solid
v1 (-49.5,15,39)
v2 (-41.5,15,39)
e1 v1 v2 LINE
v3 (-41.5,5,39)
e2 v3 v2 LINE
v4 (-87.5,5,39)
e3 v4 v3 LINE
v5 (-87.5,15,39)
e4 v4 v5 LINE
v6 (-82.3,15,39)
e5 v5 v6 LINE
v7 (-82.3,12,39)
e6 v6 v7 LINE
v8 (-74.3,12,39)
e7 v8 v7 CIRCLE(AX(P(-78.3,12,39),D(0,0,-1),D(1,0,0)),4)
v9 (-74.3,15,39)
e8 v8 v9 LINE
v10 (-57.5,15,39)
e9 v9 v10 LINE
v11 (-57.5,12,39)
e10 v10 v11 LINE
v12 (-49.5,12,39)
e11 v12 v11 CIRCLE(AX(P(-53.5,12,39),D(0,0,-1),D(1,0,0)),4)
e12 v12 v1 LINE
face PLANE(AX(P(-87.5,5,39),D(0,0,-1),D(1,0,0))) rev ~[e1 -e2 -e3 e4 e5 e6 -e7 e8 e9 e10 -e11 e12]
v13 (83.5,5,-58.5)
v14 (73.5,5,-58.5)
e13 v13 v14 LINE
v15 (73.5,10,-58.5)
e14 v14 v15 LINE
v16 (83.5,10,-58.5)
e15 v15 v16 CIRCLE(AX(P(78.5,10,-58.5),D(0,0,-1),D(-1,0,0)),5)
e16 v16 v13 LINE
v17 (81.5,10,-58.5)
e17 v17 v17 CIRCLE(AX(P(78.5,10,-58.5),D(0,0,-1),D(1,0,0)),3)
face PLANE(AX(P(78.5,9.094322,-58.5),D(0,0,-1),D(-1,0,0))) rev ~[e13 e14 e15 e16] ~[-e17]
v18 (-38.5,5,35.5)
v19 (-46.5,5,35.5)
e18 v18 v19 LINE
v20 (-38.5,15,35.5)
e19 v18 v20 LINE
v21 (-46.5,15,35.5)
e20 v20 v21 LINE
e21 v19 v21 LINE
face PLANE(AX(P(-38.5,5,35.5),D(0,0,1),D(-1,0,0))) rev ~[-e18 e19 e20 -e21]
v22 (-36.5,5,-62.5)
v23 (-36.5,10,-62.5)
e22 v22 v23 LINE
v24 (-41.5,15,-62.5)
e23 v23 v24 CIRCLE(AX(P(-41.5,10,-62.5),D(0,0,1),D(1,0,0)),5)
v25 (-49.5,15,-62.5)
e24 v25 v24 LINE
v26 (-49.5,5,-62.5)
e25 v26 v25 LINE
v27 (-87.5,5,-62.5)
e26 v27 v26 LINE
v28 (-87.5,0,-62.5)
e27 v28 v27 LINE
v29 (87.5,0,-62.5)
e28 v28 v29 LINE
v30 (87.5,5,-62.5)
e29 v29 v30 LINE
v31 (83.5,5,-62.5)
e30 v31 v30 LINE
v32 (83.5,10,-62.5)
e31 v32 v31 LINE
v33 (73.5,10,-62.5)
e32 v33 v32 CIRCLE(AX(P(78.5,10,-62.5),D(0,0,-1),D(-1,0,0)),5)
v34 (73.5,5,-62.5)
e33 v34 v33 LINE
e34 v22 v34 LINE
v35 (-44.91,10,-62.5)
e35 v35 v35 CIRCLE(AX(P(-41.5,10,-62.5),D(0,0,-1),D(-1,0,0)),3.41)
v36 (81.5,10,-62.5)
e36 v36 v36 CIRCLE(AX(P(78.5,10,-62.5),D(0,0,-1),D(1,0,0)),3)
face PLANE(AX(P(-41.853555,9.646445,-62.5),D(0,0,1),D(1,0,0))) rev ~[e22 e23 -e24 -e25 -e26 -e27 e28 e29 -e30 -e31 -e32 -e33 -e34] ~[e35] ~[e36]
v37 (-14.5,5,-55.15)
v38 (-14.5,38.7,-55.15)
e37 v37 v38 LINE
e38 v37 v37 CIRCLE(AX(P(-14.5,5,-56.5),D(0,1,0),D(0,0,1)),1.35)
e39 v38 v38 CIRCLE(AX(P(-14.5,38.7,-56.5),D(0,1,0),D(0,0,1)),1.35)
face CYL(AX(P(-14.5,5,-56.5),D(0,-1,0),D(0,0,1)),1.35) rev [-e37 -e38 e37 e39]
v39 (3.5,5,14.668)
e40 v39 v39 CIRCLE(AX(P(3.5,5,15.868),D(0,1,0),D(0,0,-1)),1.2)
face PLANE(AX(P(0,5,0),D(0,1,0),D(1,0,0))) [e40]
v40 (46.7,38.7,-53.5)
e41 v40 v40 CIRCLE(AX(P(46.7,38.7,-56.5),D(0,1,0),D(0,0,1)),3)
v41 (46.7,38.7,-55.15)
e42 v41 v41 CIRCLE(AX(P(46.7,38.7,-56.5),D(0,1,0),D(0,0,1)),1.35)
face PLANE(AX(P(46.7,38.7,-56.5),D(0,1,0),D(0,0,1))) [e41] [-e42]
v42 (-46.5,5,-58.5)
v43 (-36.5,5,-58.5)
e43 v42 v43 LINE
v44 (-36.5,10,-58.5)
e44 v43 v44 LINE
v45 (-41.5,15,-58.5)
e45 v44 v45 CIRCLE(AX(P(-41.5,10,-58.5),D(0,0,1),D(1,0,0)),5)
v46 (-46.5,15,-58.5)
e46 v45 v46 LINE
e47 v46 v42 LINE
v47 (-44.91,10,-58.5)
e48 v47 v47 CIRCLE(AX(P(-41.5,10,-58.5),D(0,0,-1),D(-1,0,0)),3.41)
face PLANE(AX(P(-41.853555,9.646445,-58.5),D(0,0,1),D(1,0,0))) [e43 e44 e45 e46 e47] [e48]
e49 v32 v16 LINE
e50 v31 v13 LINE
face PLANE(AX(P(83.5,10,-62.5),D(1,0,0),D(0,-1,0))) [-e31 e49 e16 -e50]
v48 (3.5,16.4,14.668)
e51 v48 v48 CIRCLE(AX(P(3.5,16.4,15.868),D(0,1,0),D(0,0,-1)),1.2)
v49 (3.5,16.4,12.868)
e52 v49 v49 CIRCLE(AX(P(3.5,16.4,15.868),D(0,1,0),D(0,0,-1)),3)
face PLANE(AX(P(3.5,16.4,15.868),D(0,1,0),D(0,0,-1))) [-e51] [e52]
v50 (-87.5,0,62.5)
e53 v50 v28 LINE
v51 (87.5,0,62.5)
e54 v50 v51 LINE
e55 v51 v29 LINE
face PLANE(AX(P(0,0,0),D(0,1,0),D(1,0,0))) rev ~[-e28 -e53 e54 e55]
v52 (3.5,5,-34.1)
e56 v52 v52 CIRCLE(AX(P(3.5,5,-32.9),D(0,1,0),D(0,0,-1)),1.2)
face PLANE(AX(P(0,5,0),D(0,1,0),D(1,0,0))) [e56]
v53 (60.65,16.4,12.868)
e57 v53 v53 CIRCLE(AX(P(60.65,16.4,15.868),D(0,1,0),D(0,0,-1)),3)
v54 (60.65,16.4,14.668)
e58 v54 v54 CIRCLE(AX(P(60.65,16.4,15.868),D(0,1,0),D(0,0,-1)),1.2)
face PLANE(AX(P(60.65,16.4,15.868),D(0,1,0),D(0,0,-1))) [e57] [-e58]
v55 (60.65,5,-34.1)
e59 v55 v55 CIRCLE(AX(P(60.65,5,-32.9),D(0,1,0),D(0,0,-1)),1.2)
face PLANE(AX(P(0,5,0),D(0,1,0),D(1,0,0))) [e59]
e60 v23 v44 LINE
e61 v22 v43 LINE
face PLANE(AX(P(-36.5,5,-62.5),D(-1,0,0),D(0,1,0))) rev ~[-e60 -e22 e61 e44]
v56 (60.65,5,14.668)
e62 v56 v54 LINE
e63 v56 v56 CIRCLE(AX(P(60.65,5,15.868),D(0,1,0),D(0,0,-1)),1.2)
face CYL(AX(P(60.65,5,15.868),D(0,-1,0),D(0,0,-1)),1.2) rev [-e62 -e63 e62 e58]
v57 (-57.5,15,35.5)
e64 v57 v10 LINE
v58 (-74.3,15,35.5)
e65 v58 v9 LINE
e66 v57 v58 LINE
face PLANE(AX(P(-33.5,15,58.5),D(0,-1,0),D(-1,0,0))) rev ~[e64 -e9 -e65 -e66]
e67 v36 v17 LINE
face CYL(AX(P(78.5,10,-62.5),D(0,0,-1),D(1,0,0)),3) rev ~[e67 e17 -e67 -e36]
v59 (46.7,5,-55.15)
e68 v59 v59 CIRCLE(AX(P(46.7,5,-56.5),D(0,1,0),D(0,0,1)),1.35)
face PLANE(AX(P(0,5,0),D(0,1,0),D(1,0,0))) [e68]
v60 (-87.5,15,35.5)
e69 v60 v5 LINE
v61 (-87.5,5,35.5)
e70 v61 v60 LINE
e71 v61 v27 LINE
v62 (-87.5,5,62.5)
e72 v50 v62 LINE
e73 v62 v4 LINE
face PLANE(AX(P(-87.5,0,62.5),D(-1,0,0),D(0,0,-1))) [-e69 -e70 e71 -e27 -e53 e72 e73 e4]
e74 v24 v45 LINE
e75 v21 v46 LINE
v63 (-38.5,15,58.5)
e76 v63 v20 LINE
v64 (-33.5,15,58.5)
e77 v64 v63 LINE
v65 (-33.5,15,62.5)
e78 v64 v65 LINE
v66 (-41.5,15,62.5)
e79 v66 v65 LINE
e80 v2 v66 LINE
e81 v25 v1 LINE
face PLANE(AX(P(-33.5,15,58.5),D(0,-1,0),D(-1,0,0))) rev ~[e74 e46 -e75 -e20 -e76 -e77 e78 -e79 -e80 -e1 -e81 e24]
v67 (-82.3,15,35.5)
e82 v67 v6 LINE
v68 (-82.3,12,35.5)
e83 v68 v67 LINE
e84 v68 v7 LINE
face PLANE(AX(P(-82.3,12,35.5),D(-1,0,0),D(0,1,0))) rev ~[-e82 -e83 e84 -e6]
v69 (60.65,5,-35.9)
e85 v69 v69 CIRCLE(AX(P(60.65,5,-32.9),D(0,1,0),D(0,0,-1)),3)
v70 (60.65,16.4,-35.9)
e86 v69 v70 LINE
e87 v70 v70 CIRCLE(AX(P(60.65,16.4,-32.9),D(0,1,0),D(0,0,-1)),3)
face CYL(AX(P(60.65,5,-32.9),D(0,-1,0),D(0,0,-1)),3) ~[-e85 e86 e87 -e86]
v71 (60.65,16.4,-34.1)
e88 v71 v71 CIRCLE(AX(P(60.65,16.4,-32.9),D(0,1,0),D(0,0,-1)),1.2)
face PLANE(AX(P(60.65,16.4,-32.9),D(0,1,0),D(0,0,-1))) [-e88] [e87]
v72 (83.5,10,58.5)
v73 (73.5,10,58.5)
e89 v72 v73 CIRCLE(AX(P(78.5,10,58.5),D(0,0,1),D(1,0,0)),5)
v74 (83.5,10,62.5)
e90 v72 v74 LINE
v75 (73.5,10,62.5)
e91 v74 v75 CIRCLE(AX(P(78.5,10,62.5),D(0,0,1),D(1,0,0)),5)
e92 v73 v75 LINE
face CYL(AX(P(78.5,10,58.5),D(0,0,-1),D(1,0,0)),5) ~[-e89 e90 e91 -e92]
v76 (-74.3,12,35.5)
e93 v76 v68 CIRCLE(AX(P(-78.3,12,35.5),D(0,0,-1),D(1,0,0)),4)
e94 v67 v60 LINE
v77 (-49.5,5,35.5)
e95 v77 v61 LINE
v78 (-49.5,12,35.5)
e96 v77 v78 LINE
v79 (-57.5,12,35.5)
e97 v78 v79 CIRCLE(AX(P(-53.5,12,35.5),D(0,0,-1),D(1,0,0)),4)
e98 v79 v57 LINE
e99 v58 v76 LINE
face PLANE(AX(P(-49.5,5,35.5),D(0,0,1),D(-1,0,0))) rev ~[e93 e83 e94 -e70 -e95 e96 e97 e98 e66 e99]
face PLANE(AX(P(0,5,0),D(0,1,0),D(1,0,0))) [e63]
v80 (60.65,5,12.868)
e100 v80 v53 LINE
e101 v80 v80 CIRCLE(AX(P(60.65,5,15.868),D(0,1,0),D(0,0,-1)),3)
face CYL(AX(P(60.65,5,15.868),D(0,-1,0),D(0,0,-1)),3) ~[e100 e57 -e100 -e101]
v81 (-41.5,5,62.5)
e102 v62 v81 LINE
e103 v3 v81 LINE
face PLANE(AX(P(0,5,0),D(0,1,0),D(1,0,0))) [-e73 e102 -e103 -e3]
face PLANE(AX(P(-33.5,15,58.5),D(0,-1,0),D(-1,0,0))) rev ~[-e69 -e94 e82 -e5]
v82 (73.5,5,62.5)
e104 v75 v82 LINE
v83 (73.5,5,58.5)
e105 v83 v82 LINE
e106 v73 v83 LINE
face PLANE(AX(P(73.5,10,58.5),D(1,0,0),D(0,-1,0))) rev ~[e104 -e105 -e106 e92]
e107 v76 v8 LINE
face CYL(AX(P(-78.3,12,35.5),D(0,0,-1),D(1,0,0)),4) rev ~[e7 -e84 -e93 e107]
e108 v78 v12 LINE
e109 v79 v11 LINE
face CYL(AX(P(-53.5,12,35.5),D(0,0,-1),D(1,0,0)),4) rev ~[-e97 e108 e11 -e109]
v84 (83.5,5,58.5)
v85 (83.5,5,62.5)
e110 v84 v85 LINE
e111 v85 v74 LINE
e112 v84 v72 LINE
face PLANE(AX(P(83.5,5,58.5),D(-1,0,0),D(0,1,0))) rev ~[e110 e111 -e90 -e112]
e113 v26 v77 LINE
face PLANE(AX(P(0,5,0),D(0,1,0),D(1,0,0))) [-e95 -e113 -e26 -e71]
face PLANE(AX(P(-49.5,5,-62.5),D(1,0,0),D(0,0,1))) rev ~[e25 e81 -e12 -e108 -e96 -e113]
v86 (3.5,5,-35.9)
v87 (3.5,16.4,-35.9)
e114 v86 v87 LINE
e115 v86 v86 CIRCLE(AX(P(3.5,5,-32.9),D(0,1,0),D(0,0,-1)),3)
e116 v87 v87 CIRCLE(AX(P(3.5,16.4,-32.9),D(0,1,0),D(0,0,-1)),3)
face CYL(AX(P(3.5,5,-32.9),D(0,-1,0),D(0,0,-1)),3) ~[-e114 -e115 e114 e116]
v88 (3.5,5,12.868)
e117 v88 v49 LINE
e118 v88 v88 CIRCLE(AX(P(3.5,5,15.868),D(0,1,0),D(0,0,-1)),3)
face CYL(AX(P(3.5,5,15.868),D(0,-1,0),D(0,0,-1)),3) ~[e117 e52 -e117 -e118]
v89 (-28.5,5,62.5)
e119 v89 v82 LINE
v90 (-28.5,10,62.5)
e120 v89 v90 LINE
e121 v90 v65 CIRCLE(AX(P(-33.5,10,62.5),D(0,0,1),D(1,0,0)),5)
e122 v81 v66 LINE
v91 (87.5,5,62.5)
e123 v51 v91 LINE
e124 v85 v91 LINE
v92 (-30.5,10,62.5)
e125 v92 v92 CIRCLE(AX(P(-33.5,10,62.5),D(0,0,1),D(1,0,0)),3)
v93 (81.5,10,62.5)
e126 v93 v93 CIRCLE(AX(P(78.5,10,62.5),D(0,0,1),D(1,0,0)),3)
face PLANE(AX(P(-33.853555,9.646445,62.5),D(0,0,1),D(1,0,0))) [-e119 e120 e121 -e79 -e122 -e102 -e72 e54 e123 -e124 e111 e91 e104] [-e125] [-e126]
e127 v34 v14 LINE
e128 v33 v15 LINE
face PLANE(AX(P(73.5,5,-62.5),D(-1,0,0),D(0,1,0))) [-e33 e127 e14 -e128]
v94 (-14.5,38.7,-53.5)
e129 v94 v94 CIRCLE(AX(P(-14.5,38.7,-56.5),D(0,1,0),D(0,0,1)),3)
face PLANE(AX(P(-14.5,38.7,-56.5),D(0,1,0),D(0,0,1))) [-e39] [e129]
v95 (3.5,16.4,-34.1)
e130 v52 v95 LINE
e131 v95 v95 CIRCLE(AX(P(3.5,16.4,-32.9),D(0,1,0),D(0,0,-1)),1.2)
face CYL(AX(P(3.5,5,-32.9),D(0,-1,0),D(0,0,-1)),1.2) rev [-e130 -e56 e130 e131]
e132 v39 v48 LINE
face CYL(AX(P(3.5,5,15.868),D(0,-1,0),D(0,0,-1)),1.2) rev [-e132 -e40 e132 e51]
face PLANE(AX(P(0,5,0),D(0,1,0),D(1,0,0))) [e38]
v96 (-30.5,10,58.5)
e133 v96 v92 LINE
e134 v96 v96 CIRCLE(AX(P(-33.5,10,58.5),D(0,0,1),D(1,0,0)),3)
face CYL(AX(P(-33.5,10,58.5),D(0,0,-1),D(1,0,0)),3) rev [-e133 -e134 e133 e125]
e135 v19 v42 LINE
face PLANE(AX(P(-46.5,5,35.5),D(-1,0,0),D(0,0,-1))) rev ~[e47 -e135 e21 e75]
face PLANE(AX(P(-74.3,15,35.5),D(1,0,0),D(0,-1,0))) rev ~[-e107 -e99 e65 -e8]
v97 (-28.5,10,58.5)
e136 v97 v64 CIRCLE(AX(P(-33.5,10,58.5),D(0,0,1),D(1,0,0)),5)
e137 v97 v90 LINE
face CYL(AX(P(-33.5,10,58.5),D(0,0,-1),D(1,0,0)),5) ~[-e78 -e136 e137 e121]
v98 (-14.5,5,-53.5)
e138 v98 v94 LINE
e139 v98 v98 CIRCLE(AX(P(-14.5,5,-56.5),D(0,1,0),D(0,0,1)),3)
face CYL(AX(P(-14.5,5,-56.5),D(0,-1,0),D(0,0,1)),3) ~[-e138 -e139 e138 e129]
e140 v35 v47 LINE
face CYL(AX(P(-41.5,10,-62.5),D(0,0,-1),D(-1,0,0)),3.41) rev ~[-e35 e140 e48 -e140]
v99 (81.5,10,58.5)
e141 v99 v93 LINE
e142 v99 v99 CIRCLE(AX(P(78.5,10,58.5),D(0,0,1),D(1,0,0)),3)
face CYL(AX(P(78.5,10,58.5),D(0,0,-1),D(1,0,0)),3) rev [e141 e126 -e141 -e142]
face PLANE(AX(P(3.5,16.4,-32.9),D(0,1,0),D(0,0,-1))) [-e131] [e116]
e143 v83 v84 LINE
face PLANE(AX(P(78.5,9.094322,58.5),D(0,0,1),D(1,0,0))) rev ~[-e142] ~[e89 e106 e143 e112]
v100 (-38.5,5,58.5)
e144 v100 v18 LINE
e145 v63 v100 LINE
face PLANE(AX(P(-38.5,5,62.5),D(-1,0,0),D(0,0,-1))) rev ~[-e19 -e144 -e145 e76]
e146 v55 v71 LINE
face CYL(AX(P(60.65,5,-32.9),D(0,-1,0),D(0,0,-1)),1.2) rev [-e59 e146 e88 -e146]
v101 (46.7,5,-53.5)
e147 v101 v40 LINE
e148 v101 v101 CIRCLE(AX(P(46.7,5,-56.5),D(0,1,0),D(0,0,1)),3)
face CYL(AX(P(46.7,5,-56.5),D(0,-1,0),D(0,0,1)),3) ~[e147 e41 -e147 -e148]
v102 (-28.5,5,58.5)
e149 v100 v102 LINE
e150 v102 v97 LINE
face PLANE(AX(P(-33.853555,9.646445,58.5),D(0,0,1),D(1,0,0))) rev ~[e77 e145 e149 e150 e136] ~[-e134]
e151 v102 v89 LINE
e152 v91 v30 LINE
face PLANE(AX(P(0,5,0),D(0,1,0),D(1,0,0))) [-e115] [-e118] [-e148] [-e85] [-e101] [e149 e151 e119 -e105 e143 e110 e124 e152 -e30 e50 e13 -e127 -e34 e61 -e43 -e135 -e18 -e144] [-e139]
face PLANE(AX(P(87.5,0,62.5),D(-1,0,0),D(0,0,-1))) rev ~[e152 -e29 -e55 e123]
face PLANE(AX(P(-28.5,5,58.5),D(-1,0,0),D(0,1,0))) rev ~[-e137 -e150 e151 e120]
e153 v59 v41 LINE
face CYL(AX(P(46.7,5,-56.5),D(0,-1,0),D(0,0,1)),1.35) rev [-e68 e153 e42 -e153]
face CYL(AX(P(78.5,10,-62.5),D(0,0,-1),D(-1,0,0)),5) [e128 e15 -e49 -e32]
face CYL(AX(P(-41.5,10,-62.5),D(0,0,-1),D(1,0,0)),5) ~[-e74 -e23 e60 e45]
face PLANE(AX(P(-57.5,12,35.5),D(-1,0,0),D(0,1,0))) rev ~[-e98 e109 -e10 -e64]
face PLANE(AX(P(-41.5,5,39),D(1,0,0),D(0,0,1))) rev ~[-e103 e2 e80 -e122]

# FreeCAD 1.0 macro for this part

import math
import FreeCAD as App
import Part
import Sketcher

doc = App.newDocument("Part")
params = doc.addObject("Spreadsheet::Sheet", "Params")
for row, (alias, value) in enumerate([
    ("sketch1_width", "175 mm"),
    ("sketch1_height", "125 mm"),
    ("pad1_length", "5 mm"),
    ("sketch2_width", "38 mm"),
    ("sketch2_width2", "46 mm"),
    ("sketch2_width3", "3 mm"),
    ("sketch2_height", "98 mm"),
    ("sketch2_height2", "27 mm"),
    ("pad2_length", "10 mm"),
    ("sketch3_diameter", "6 mm"),
    ("sketch3_radius", "5 mm"),
    ("sketch3_diameter2", "6.82 mm"),
    ("pad3_length", "4 mm"),
    ("sketch4_diameter", "6 mm"),
    ("sketch4_radius", "5 mm"),
    ("pad4_length", "4 mm"),
    ("sketch5_diameter", "6 mm"),
    ("sketch5_diameter2", "2.4 mm"),
    ("pad5_length", "11.4 mm"),
    ("sketch6_diameter", "6 mm"),
    ("sketch6_diameter2", "2.7 mm"),
    ("pad6_length", "33.7 mm"),
    ("sketch7_radius", "4 mm"),
    ("sketch7_height", "3 mm"),
    ("sketch8_radius", "4 mm"),
    ("sketch8_height", "3 mm"),
], start=1):
    params.set(f"A{row}", alias)
    params.set(f"B{row}", "=" + value)
    params.setAlias(f"B{row}", alias)

body = doc.addObject("PartDesign::Body", "Body")

# Sketch on XZ plane
sketch1 = body.newObject("Sketcher::SketchObject", "Sketch")
sketch1.AttachmentSupport = (doc.getObject("XZ_Plane"), [""])
sketch1.MapMode = "FlatFace"
sketch1.addGeometry(Part.LineSegment(App.Vector(-87.5, -62.5, 0), App.Vector(-87.5, 62.5, 0)), False)
sketch1.addGeometry(Part.LineSegment(App.Vector(-87.5, 62.5, 0), App.Vector(87.5, 62.5, 0)), False)
sketch1.addGeometry(Part.LineSegment(App.Vector(87.5, 62.5, 0), App.Vector(87.5, -62.5, 0)), False)
sketch1.addGeometry(Part.LineSegment(App.Vector(87.5, -62.5, 0), App.Vector(-87.5, -62.5, 0)), False)
sketch1.addConstraint(Sketcher.Constraint("Coincident", 0, 2, 1, 1))
sketch1.addConstraint(Sketcher.Constraint("Coincident", 1, 2, 2, 1))
sketch1.addConstraint(Sketcher.Constraint("Coincident", 2, 2, 3, 1))
sketch1.addConstraint(Sketcher.Constraint("Coincident", 3, 2, 0, 1))
sketch1.addConstraint(Sketcher.Constraint("Vertical", 0))
sketch1.addConstraint(Sketcher.Constraint("Horizontal", 1))
sketch1.addConstraint(Sketcher.Constraint("Vertical", 2))
sketch1.addConstraint(Sketcher.Constraint("Horizontal", 3))
sketch1.addConstraint(Sketcher.Constraint("Symmetric", 0, 2, 2, 2, -1, 1))
sketch1.addConstraint(Sketcher.Constraint("DistanceX", 1, 1, 1, 2, 175.0))
sketch1.addConstraint(Sketcher.Constraint("DistanceY", 0, 1, 0, 2, 125.0))
sketch1.setExpression("Constraints[9]", "Params.sketch1_width")
sketch1.setExpression("Constraints[10]", "Params.sketch1_height")
pad1 = body.newObject("PartDesign::Pad", "Pad")
pad1.Profile = sketch1
pad1.setExpression("Length", "Params.pad1_length")
pad1.Reversed = True

# Sketch on XZ plane
sketch2 = body.newObject("Sketcher::SketchObject", "Sketch001")
sketch2.AttachmentSupport = (doc.getObject("XZ_Plane"), [""])
sketch2.MapMode = "FlatFace"
sketch2.AttachmentOffset = App.Placement(App.Vector(0, 0, -5), App.Rotation())
sketch2.addGeometry(Part.LineSegment(App.Vector(-49.5, -62.5, 0), App.Vector(-49.5, 35.5, 0)), False)
sketch2.addGeometry(Part.LineSegment(App.Vector(-49.5, 35.5, 0), App.Vector(-87.5, 35.5, 0)), False)
sketch2.addGeometry(Part.LineSegment(App.Vector(-87.5, 35.5, 0), App.Vector(-87.5, 39, 0)), False)
sketch2.addGeometry(Part.LineSegment(App.Vector(-87.5, 39, 0), App.Vector(-41.5, 39, 0)), False)
sketch2.addGeometry(Part.LineSegment(App.Vector(-41.5, 39, 0), App.Vector(-41.5, 62.5, 0)), False)
sketch2.addGeometry(Part.LineSegment(App.Vector(-41.5, 62.5, 0), App.Vector(-38.5, 62.5, 0)), False)
sketch2.addGeometry(Part.LineSegment(App.Vector(-38.5, 62.5, 0), App.Vector(-38.5, 35.5, 0)), False)
sketch2.addGeometry(Part.LineSegment(App.Vector(-38.5, 35.5, 0), App.Vector(-46.5, 35.5, 0)), False)
sketch2.addGeometry(Part.LineSegment(App.Vector(-46.5, 35.5, 0), App.Vector(-46.5, -62.5, 0)), False)
sketch2.addGeometry(Part.LineSegment(App.Vector(-46.5, -62.5, 0), App.Vector(-49.5, -62.5, 0)), False)
sketch2.addConstraint(Sketcher.Constraint("Coincident", 0, 2, 1, 1))
sketch2.addConstraint(Sketcher.Constraint("Coincident", 1, 2, 2, 1))
sketch2.addConstraint(Sketcher.Constraint("Coincident", 2, 2, 3, 1))
sketch2.addConstraint(Sketcher.Constraint("Coincident", 3, 2, 4, 1))
sketch2.addConstraint(Sketcher.Constraint("Coincident", 4, 2, 5, 1))
sketch2.addConstraint(Sketcher.Constraint("Coincident", 5, 2, 6, 1))
sketch2.addConstraint(Sketcher.Constraint("Coincident", 6, 2, 7, 1))
sketch2.addConstraint(Sketcher.Constraint("Coincident", 7, 2, 8, 1))
sketch2.addConstraint(Sketcher.Constraint("Coincident", 8, 2, 9, 1))
sketch2.addConstraint(Sketcher.Constraint("Coincident", 9, 2, 0, 1))
sketch2.addConstraint(Sketcher.Constraint("Vertical", 0))
sketch2.addConstraint(Sketcher.Constraint("Horizontal", 1))
sketch2.addConstraint(Sketcher.Constraint("Vertical", 2))
sketch2.addConstraint(Sketcher.Constraint("Horizontal", 3))
sketch2.addConstraint(Sketcher.Constraint("Vertical", 4))
sketch2.addConstraint(Sketcher.Constraint("Horizontal", 5))
sketch2.addConstraint(Sketcher.Constraint("Vertical", 6))
sketch2.addConstraint(Sketcher.Constraint("Horizontal", 7))
sketch2.addConstraint(Sketcher.Constraint("Vertical", 8))
sketch2.addConstraint(Sketcher.Constraint("Horizontal", 9))
sketch2.addConstraint(Sketcher.Constraint("Horizontal", 1, 2, 6, 2))
sketch2.addConstraint(Sketcher.Constraint("Equal", 5, 9))
sketch2.addConstraint(Sketcher.Constraint("DistanceX", 1, 2, 1, 1, 38.0))
sketch2.addConstraint(Sketcher.Constraint("DistanceX", 3, 1, 3, 2, 46.0))
sketch2.addConstraint(Sketcher.Constraint("DistanceX", 5, 1, 5, 2, 3.0))
sketch2.addConstraint(Sketcher.Constraint("DistanceY", 0, 1, 0, 2, 98.0))
sketch2.addConstraint(Sketcher.Constraint("DistanceY", 6, 2, 6, 1, 27.0))
sketch2.addConstraint(Sketcher.Constraint("DistanceY", 2, 1, 2, 2, 3.5))
sketch2.addConstraint(Sketcher.Constraint("DistanceY", -1, 1, 2, 2, 39.0))
sketch2.addConstraint(Sketcher.Constraint("DistanceX", 0, 2, -1, 1, 49.5))
sketch2.setExpression("Constraints[22]", "Params.sketch2_width")
sketch2.setExpression("Constraints[23]", "Params.sketch2_width2")
sketch2.setExpression("Constraints[24]", "Params.sketch2_width3")
sketch2.setExpression("Constraints[25]", "Params.sketch2_height")
sketch2.setExpression("Constraints[26]", "Params.sketch2_height2")
pad2 = body.newObject("PartDesign::Pad", "Pad001")
pad2.Profile = sketch2
pad2.setExpression("Length", "Params.pad2_length")
pad2.Reversed = True

# Sketch on XY plane
sketch3 = body.newObject("Sketcher::SketchObject", "Sketch002")
sketch3.AttachmentSupport = (doc.getObject("XY_Plane"), [""])
sketch3.MapMode = "FlatFace"
sketch3.AttachmentOffset = App.Placement(App.Vector(0, 0, -62.5), App.Rotation())
sketch3.addGeometry(Part.LineSegment(App.Vector(-36.5, 5, 0), App.Vector(-46.5, 5, 0)), False)
sketch3.addGeometry(Part.LineSegment(App.Vector(-46.5, 5, 0), App.Vector(-46.5, 15, 0)), False)
sketch3.addGeometry(Part.LineSegment(App.Vector(-46.5, 15, 0), App.Vector(-41.5, 15, 0)), False)
sketch3.addGeometry(Part.ArcOfCircle(Part.Circle(App.Vector(-41.5, 10, 0), App.Vector(0, 0, 1), 5), math.radians(0), math.radians(90)), False)
sketch3.addGeometry(Part.LineSegment(App.Vector(-36.5, 10, 0), App.Vector(-36.5, 5, 0)), False)
sketch3.addGeometry(Part.Circle(App.Vector(-41.5, 10, 0), App.Vector(0, 0, 1), 3.41), False)
sketch3.addGeometry(Part.LineSegment(App.Vector(83.5, 10, 0), App.Vector(83.5, 5, 0)), False)
sketch3.addGeometry(Part.LineSegment(App.Vector(83.5, 5, 0), App.Vector(73.5, 5, 0)), False)
sketch3.addGeometry(Part.LineSegment(App.Vector(73.5, 5, 0), App.Vector(73.5, 10, 0)), False)
sketch3.addGeometry(Part.ArcOfCircle(Part.Circle(App.Vector(78.5, 10, 0), App.Vector(0, 0, 1), 5), math.radians(0), math.radians(180)), False)
sketch3.addGeometry(Part.Circle(App.Vector(78.5, 10, 0), App.Vector(0, 0, 1), 3), False)
sketch3.addConstraint(Sketcher.Constraint("Coincident", 0, 2, 1, 1))
sketch3.addConstraint(Sketcher.Constraint("Coincident", 1, 2, 2, 1))
sketch3.addConstraint(Sketcher.Constraint("Tangent", 2, 2, 3, 2))
sketch3.addConstraint(Sketcher.Constraint("Tangent", 3, 1, 4, 1))
sketch3.addConstraint(Sketcher.Constraint("Coincident", 4, 2, 0, 1))
sketch3.addConstraint(Sketcher.Constraint("Coincident", 6, 2, 7, 1))
sketch3.addConstraint(Sketcher.Constraint("Coincident", 7, 2, 8, 1))
sketch3.addConstraint(Sketcher.Constraint("Tangent", 8, 2, 9, 2))
sketch3.addConstraint(Sketcher.Constraint("Tangent", 9, 1, 6, 1))
sketch3.addConstraint(Sketcher.Constraint("Horizontal", 0))
sketch3.addConstraint(Sketcher.Constraint("Vertical", 1))
sketch3.addConstraint(Sketcher.Constraint("Horizontal", 2))
sketch3.addConstraint(Sketcher.Constraint("Vertical", 4))
sketch3.addConstraint(Sketcher.Constraint("Vertical", 6))
sketch3.addConstraint(Sketcher.Constraint("Horizontal", 7))
sketch3.addConstraint(Sketcher.Constraint("Vertical", 8))
sketch3.addConstraint(Sketcher.Constraint("Coincident", 5, 3, 3, 3))
sketch3.addConstraint(Sketcher.Constraint("Coincident", 10, 3, 9, 3))
sketch3.addConstraint(Sketcher.Constraint("Equal", 3, 9))
sketch3.addConstraint(Sketcher.Constraint("Horizontal", 5, 3, 9, 3))
sketch3.addConstraint(Sketcher.Constraint("Horizontal", 4, 2, 6, 2))
sketch3.addConstraint(Sketcher.Constraint("Equal", 0, 7))
sketch3.addConstraint(Sketcher.Constraint("Equal", 7, 1))
sketch3.addConstraint(Sketcher.Constraint("Diameter", 10, 6.0))
sketch3.addConstraint(Sketcher.Constraint("Radius", 3, 5.0))
sketch3.addConstraint(Sketcher.Constraint("Diameter", 5, 6.82))
sketch3.addConstraint(Sketcher.Constraint("DistanceY", -1, 1, 3, 3, 10.0))
sketch3.addConstraint(Sketcher.Constraint("DistanceX", 3, 3, 9, 3, 120.0))
sketch3.addConstraint(Sketcher.Constraint("DistanceX", 3, 3, -1, 1, 41.5))
sketch3.setExpression("Constraints[23]", "Params.sketch3_diameter")
sketch3.setExpression("Constraints[24]", "Params.sketch3_radius")
sketch3.setExpression("Constraints[25]", "Params.sketch3_diameter2")
pad3 = body.newObject("PartDesign::Pad", "Pad002")
pad3.Profile = sketch3
pad3.setExpression("Length", "Params.pad3_length")

# Sketch on XY plane
sketch4 = body.newObject("Sketcher::SketchObject", "Sketch003")
sketch4.AttachmentSupport = (doc.getObject("XY_Plane"), [""])
sketch4.MapMode = "FlatFace"
sketch4.AttachmentOffset = App.Placement(App.Vector(0, 0, 58.5), App.Rotation())
sketch4.addGeometry(Part.LineSegment(App.Vector(73.5, 5, 0), App.Vector(83.5, 5, 0)), False)
sketch4.addGeometry(Part.LineSegment(App.Vector(83.5, 5, 0), App.Vector(83.5, 10, 0)), False)
sketch4.addGeometry(Part.ArcOfCircle(Part.Circle(App.Vector(78.5, 10, 0), App.Vector(0, 0, 1), 5), math.radians(0), math.radians(180)), False)
sketch4.addGeometry(Part.LineSegment(App.Vector(73.5, 10, 0), App.Vector(73.5, 5, 0)), False)
sketch4.addGeometry(Part.Circle(App.Vector(78.5, 10, 0), App.Vector(0, 0, 1), 3), False)
sketch4.addGeometry(Part.LineSegment(App.Vector(-38.5, 15, 0), App.Vector(-38.5, 5, 0)), False)
sketch4.addGeometry(Part.LineSegment(App.Vector(-38.5, 5, 0), App.Vector(-28.5, 5, 0)), False)
sketch4.addGeometry(Part.LineSegment(App.Vector(-28.5, 5, 0), App.Vector(-28.5, 10, 0)), False)
sketch4.addGeometry(Part.ArcOfCircle(Part.Circle(App.Vector(-33.5, 10, 0), App.Vector(0, 0, 1), 5), math.radians(0), math.radians(90)), False)
sketch4.addGeometry(Part.LineSegment(App.Vector(-33.5, 15, 0), App.Vector(-38.5, 15, 0)), False)
sketch4.addGeometry(Part.Circle(App.Vector(-33.5, 10, 0), App.Vector(0, 0, 1), 3), False)
sketch4.addConstraint(Sketcher.Constraint("Coincident", 0, 2, 1, 1))
sketch4.addConstraint(Sketcher.Constraint("Tangent", 1, 2, 2, 1))
sketch4.addConstraint(Sketcher.Constraint("Tangent", 2, 2, 3, 1))
sketch4.addConstraint(Sketcher.Constraint("Coincident", 3, 2, 0, 1))
sketch4.addConstraint(Sketcher.Constraint("Coincident", 5, 2, 6, 1))
sketch4.addConstraint(Sketcher.Constraint("Coincident", 6, 2, 7, 1))
sketch4.addConstraint(Sketcher.Constraint("Tangent", 7, 2, 8, 1))
sketch4.addConstraint(Sketcher.Constraint("Tangent", 8, 2, 9, 1))
sketch4.addConstraint(Sketcher.Constraint("Coincident", 9, 2, 5, 1))
sketch4.addConstraint(Sketcher.Constraint("Horizontal", 0))
sketch4.addConstraint(Sketcher.Constraint("Vertical", 1))
sketch4.addConstraint(Sketcher.Constraint("Vertical", 3))
sketch4.addConstraint(Sketcher.Constraint("Vertical", 5))
sketch4.addConstraint(Sketcher.Constraint("Horizontal", 6))
sketch4.addConstraint(Sketcher.Constraint("Vertical", 7))
sketch4.addConstraint(Sketcher.Constraint("Horizontal", 9))
sketch4.addConstraint(Sketcher.Constraint("Coincident", 4, 3, 2, 3))
sketch4.addConstraint(Sketcher.Constraint("Coincident", 10, 3, 8, 3))
sketch4.addConstraint(Sketcher.Constraint("Equal", 2, 8))
sketch4.addConstraint(Sketcher.Constraint("Equal", 4, 10))
sketch4.addConstraint(Sketcher.Constraint("Horizontal", 4, 3, 8, 3))
sketch4.addConstraint(Sketcher.Constraint("Horizontal", 3, 2, 5, 2))
sketch4.addConstraint(Sketcher.Constraint("Equal", 0, 6))
sketch4.addConstraint(Sketcher.Constraint("Equal", 9, 1))
sketch4.addConstraint(Sketcher.Constraint("Diameter", 4, 6.0))
sketch4.addConstraint(Sketcher.Constraint("Radius", 2, 5.0))
sketch4.addConstraint(Sketcher.Constraint("DistanceY", -1, 1, 2, 3, 10.0))
sketch4.addConstraint(Sketcher.Constraint("DistanceX", 8, 3, 2, 3, 112.0))
sketch4.addConstraint(Sketcher.Constraint("DistanceX", -1, 1, 2, 3, 78.5))
sketch4.setExpression("Constraints[24]", "Params.sketch4_diameter")
sketch4.setExpression("Constraints[25]", "Params.sketch4_radius")
pad4 = body.newObject("PartDesign::Pad", "Pad003")
pad4.Profile = sketch4
pad4.setExpression("Length", "Params.pad4_length")

# Sketch on XZ plane
sketch5 = body.newObject("Sketcher::SketchObject", "Sketch004")
sketch5.AttachmentSupport = (doc.getObject("XZ_Plane"), [""])
sketch5.MapMode = "FlatFace"
sketch5.AttachmentOffset = App.Placement(App.Vector(0, 0, -5), App.Rotation())
sketch5.addGeometry(Part.Circle(App.Vector(3.5, -32.9, 0), App.Vector(0, 0, 1), 3), False)
sketch5.addGeometry(Part.Circle(App.Vector(3.5, -32.9, 0), App.Vector(0, 0, 1), 1.2), False)
sketch5.addGeometry(Part.Circle(App.Vector(60.65, -32.9, 0), App.Vector(0, 0, 1), 3), False)
sketch5.addGeometry(Part.Circle(App.Vector(60.65, -32.9, 0), App.Vector(0, 0, 1), 1.2), False)
sketch5.addGeometry(Part.Circle(App.Vector(60.65, 15.868, 0), App.Vector(0, 0, 1), 3), False)
sketch5.addGeometry(Part.Circle(App.Vector(60.65, 15.868, 0), App.Vector(0, 0, 1), 1.2), False)
sketch5.addGeometry(Part.Circle(App.Vector(3.5, 15.868, 0), App.Vector(0, 0, 1), 3), False)
sketch5.addGeometry(Part.Circle(App.Vector(3.5, 15.868, 0), App.Vector(0, 0, 1), 1.2), False)
sketch5.addConstraint(Sketcher.Constraint("Coincident", 1, 3, 0, 3))
sketch5.addConstraint(Sketcher.Constraint("Coincident", 3, 3, 2, 3))
sketch5.addConstraint(Sketcher.Constraint("Coincident", 5, 3, 4, 3))
sketch5.addConstraint(Sketcher.Constraint("Coincident", 7, 3, 6, 3))
sketch5.addConstraint(Sketcher.Constraint("Equal", 0, 2))
sketch5.addConstraint(Sketcher.Constraint("Equal", 1, 3))
sketch5.addConstraint(Sketcher.Constraint("Equal", 2, 4))
sketch5.addConstraint(Sketcher.Constraint("Equal", 3, 5))
sketch5.addConstraint(Sketcher.Constraint("Equal", 4, 6))
sketch5.addConstraint(Sketcher.Constraint("Equal", 5, 7))
sketch5.addConstraint(Sketcher.Constraint("Horizontal", 1, 3, 2, 3))
sketch5.addConstraint(Sketcher.Constraint("Horizontal", 5, 3, 6, 3))
sketch5.addConstraint(Sketcher.Constraint("Vertical", 3, 3, 4, 3))
sketch5.addConstraint(Sketcher.Constraint("Vertical", 1, 3, 6, 3))
sketch5.addConstraint(Sketcher.Constraint("Diameter", 0, 6.0))
sketch5.addConstraint(Sketcher.Constraint("Diameter", 1, 2.4))
sketch5.addConstraint(Sketcher.Constraint("DistanceX", -1, 1, 0, 3, 3.5))
sketch5.addConstraint(Sketcher.Constraint("DistanceY", 0, 3, -1, 1, 32.9))
sketch5.addConstraint(Sketcher.Constraint("DistanceX", -1, 1, 2, 3, 60.65))
sketch5.addConstraint(Sketcher.Constraint("DistanceY", -1, 1, 4, 3, 15.868))
sketch5.setExpression("Constraints[14]", "Params.sketch5_diameter")
sketch5.setExpression("Constraints[15]", "Params.sketch5_diameter2")
pad5 = body.newObject("PartDesign::Pad", "Pad004")
pad5.Profile = sketch5
pad5.setExpression("Length", "Params.pad5_length")
pad5.Reversed = True

# Sketch on XZ plane
sketch6 = body.newObject("Sketcher::SketchObject", "Sketch005")
sketch6.AttachmentSupport = (doc.getObject("XZ_Plane"), [""])
sketch6.MapMode = "FlatFace"
sketch6.AttachmentOffset = App.Placement(App.Vector(0, 0, -5), App.Rotation())
sketch6.addGeometry(Part.Circle(App.Vector(46.7, -56.5, 0), App.Vector(0, 0, 1), 3), False)
sketch6.addGeometry(Part.Circle(App.Vector(46.7, -56.5, 0), App.Vector(0, 0, 1), 1.35), False)
sketch6.addGeometry(Part.Circle(App.Vector(-14.5, -56.5, 0), App.Vector(0, 0, 1), 3), False)
sketch6.addGeometry(Part.Circle(App.Vector(-14.5, -56.5, 0), App.Vector(0, 0, 1), 1.35), False)
sketch6.addConstraint(Sketcher.Constraint("Coincident", 1, 3, 0, 3))
sketch6.addConstraint(Sketcher.Constraint("Coincident", 3, 3, 2, 3))
sketch6.addConstraint(Sketcher.Constraint("Equal", 0, 2))
sketch6.addConstraint(Sketcher.Constraint("Equal", 1, 3))
sketch6.addConstraint(Sketcher.Constraint("Horizontal", 1, 3, 2, 3))
sketch6.addConstraint(Sketcher.Constraint("Diameter", 0, 6.0))
sketch6.addConstraint(Sketcher.Constraint("Diameter", 1, 2.7))
sketch6.addConstraint(Sketcher.Constraint("DistanceX", -1, 1, 0, 3, 46.7))
sketch6.addConstraint(Sketcher.Constraint("DistanceY", 0, 3, -1, 1, 56.5))
sketch6.addConstraint(Sketcher.Constraint("DistanceX", 2, 3, -1, 1, 14.5))
sketch6.setExpression("Constraints[5]", "Params.sketch6_diameter")
sketch6.setExpression("Constraints[6]", "Params.sketch6_diameter2")
pad6 = body.newObject("PartDesign::Pad", "Pad005")
pad6.Profile = sketch6
pad6.setExpression("Length", "Params.pad6_length")
pad6.Reversed = True

# Sketch on XY plane
sketch7 = body.newObject("Sketcher::SketchObject", "Sketch006")
sketch7.AttachmentSupport = (doc.getObject("XY_Plane"), [""])
sketch7.MapMode = "FlatFace"
sketch7.AttachmentOffset = App.Placement(App.Vector(0, 0, 35.5), App.Rotation())
sketch7.addGeometry(Part.LineSegment(App.Vector(-49.5, 15, 0), App.Vector(-49.5, 12, 0)), False)
sketch7.addGeometry(Part.ArcOfCircle(Part.Circle(App.Vector(-53.5, 12, 0), App.Vector(0, 0, 1), 4), math.radians(180), math.radians(360)), False)
sketch7.addGeometry(Part.LineSegment(App.Vector(-57.5, 12, 0), App.Vector(-57.5, 15, 0)), False)
sketch7.addGeometry(Part.LineSegment(App.Vector(-57.5, 15, 0), App.Vector(-49.5, 15, 0)), False)
sketch7.addConstraint(Sketcher.Constraint("Tangent", 0, 2, 1, 2))
sketch7.addConstraint(Sketcher.Constraint("Tangent", 1, 1, 2, 1))
sketch7.addConstraint(Sketcher.Constraint("Coincident", 2, 2, 3, 1))
sketch7.addConstraint(Sketcher.Constraint("Coincident", 3, 2, 0, 1))
sketch7.addConstraint(Sketcher.Constraint("Vertical", 0))
sketch7.addConstraint(Sketcher.Constraint("Vertical", 2))
sketch7.addConstraint(Sketcher.Constraint("Horizontal", 3))
sketch7.addConstraint(Sketcher.Constraint("Radius", 1, 4.0))
sketch7.addConstraint(Sketcher.Constraint("DistanceY", 0, 2, 0, 1, 3.0))
sketch7.addConstraint(Sketcher.Constraint("DistanceY", -1, 1, 1, 3, 12.0))
sketch7.addConstraint(Sketcher.Constraint("DistanceX", 1, 3, -1, 1, 53.5))
sketch7.setExpression("Constraints[7]", "Params.sketch7_radius")
sketch7.setExpression("Constraints[8]", "Params.sketch7_height")
pocket1 = body.newObject("PartDesign::Pocket", "Pocket")
pocket1.Profile = sketch7
pocket1.Type = "UpToFirst"
pocket1.Reversed = True

# Sketch on XY plane
sketch8 = body.newObject("Sketcher::SketchObject", "Sketch007")
sketch8.AttachmentSupport = (doc.getObject("XY_Plane"), [""])
sketch8.MapMode = "FlatFace"
sketch8.AttachmentOffset = App.Placement(App.Vector(0, 0, 35.5), App.Rotation())
sketch8.addGeometry(Part.LineSegment(App.Vector(-74.3, 15, 0), App.Vector(-74.3, 12, 0)), False)
sketch8.addGeometry(Part.ArcOfCircle(Part.Circle(App.Vector(-78.3, 12, 0), App.Vector(0, 0, 1), 4), math.radians(180), math.radians(360)), False)
sketch8.addGeometry(Part.LineSegment(App.Vector(-82.3, 12, 0), App.Vector(-82.3, 15, 0)), False)
sketch8.addGeometry(Part.LineSegment(App.Vector(-82.3, 15, 0), App.Vector(-74.3, 15, 0)), False)
sketch8.addConstraint(Sketcher.Constraint("Tangent", 0, 2, 1, 2))
sketch8.addConstraint(Sketcher.Constraint("Tangent", 1, 1, 2, 1))
sketch8.addConstraint(Sketcher.Constraint("Coincident", 2, 2, 3, 1))
sketch8.addConstraint(Sketcher.Constraint("Coincident", 3, 2, 0, 1))
sketch8.addConstraint(Sketcher.Constraint("Vertical", 0))
sketch8.addConstraint(Sketcher.Constraint("Vertical", 2))
sketch8.addConstraint(Sketcher.Constraint("Horizontal", 3))
sketch8.addConstraint(Sketcher.Constraint("Radius", 1, 4.0))
sketch8.addConstraint(Sketcher.Constraint("DistanceY", 0, 2, 0, 1, 3.0))
sketch8.addConstraint(Sketcher.Constraint("DistanceY", -1, 1, 1, 3, 12.0))
sketch8.addConstraint(Sketcher.Constraint("DistanceX", 1, 3, -1, 1, 78.3))
sketch8.setExpression("Constraints[7]", "Params.sketch8_radius")
sketch8.setExpression("Constraints[8]", "Params.sketch8_height")
pocket2 = body.newObject("PartDesign::Pocket", "Pocket001")
pocket2.Profile = sketch8
pocket2.Type = "UpToFirst"
pocket2.Reversed = True

doc.recompute()
